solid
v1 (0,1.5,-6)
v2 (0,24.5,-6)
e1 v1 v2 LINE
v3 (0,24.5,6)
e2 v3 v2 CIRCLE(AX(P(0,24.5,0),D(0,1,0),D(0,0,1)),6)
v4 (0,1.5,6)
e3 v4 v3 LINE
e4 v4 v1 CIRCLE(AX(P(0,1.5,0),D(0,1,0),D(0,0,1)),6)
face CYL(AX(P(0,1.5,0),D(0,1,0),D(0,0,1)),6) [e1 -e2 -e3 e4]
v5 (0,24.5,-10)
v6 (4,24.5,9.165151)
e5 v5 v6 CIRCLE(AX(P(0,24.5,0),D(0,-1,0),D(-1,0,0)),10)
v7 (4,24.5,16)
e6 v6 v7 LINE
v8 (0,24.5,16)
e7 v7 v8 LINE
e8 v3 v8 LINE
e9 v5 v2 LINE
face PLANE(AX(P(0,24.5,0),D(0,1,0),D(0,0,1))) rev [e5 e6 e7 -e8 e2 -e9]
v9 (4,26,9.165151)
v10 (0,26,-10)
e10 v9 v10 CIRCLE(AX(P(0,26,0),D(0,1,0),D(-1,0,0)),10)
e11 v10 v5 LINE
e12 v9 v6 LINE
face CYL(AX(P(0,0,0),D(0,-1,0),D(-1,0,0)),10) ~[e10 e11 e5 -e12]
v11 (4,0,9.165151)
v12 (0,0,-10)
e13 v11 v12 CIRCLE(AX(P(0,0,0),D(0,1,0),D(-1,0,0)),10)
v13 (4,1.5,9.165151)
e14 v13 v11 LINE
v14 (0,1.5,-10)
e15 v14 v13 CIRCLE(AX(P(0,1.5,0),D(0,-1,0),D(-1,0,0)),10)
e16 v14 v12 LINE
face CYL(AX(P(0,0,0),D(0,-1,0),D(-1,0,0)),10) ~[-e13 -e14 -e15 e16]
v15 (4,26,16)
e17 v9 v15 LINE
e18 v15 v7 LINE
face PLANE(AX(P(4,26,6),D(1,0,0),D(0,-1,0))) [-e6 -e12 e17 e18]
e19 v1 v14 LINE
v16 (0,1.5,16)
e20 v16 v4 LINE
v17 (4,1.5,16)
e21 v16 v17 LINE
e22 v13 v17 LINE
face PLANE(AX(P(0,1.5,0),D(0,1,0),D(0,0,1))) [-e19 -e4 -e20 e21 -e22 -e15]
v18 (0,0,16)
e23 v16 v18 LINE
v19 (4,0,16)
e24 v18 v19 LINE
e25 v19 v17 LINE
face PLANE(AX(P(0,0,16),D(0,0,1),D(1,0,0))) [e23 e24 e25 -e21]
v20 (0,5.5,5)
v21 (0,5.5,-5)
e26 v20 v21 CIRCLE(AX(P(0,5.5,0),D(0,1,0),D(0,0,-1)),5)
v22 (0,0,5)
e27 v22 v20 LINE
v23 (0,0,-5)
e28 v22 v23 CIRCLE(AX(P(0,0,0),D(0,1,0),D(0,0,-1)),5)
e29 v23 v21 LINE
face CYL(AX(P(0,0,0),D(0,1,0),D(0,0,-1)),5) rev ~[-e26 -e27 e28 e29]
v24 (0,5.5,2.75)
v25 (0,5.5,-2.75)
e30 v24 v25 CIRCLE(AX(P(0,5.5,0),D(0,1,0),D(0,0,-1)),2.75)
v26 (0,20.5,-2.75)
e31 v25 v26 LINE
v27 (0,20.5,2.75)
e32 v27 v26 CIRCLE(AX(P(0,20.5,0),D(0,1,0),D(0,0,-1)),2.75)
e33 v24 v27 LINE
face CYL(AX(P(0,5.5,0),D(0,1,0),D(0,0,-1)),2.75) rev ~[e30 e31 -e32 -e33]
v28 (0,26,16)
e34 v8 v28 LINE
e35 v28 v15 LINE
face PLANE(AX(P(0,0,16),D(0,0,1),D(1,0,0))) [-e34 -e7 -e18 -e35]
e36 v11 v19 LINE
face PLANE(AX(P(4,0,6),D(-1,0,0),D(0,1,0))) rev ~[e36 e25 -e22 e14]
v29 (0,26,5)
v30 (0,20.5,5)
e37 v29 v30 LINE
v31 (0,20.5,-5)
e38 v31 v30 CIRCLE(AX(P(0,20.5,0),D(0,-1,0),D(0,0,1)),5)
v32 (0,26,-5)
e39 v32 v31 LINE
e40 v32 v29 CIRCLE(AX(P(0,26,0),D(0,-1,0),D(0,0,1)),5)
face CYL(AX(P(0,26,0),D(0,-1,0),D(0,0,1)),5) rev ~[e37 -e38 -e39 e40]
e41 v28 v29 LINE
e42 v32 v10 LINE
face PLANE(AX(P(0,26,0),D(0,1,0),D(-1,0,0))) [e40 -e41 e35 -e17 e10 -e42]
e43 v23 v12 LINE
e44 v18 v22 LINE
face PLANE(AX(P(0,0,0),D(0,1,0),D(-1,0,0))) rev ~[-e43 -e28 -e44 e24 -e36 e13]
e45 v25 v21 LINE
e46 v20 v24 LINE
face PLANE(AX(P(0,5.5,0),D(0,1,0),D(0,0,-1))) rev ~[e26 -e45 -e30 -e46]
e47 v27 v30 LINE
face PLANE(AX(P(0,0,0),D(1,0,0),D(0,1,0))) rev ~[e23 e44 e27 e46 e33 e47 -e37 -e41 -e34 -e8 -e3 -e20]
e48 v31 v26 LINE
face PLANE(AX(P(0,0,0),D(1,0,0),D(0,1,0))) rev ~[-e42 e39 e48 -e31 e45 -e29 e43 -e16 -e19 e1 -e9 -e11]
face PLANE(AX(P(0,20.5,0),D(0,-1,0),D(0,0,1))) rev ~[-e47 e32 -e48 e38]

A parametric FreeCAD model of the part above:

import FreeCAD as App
import Part
import Sketcher

V = App.Vector

doc = App.newDocument("Part")
body = doc.addObject("PartDesign::Body", "Body")

# Sketch on XZ plane
sketch1 = body.newObject("Sketcher::SketchObject", "Sketch")
sketch1.AttachmentSupport = (doc.getObject("XZ_Plane"), [""])
sketch1.MapMode = "FlatFace"
sketch1.addGeometry(Part.Circle(V(0, 0, 0), V(0, 0, 1), 10), False)
sketch1.addConstraint([
    Sketcher.Constraint("Coincident", 0, 3, -1, 1),
    Sketcher.Constraint("Diameter", 0, 20.0),
])
pad1 = body.newObject("PartDesign::Pad", "Pad")
pad1.Profile = sketch1
pad1.Length = 26
pad1.Reversed = True

# Sketch on XZ plane
sketch2 = body.newObject("Sketcher::SketchObject", "Sketch001")
sketch2.AttachmentSupport = (doc.getObject("XZ_Plane"), [""])
sketch2.MapMode = "FlatFace"
sketch2.addGeometry(Part.Circle(V(0, 0, 0), V(0, 0, 1), 2.8), False)
sketch2.addConstraint([
    Sketcher.Constraint("Coincident", 0, 3, -1, 1),
    Sketcher.Constraint("Diameter", 0, 5.5),
])
doc.recompute()
hole = body.newObject("PartDesign::Hole", "Hole")
hole.Profile = sketch2
hole.ThreadType = "None"
hole.Diameter = 5.5
hole.DepthType = "ThroughAll"
hole.HoleCutType = "Counterbore"
hole.HoleCutDiameter = 10
hole.HoleCutDepth = 5.5

# Sketch on YZ plane
sketch3 = body.newObject("Sketcher::SketchObject", "Sketch002")
sketch3.AttachmentSupport = (doc.getObject("YZ_Plane"), [""])
sketch3.MapMode = "FlatFace"
sketch3.addGeometry([
    Part.LineSegment(V(24.5, 6, 0), V(24.5, 10, 0)),
    Part.LineSegment(V(24.5, 10, 0), V(1.5, 10, 0)),
    Part.LineSegment(V(1.5, 10, 0), V(1.5, 6, 0)),
    Part.LineSegment(V(1.5, 6, 0), V(24.5, 6, 0)),
], False)
sketch3.addConstraint([
    Sketcher.Constraint("Coincident", 0, 2, 1, 1),
    Sketcher.Constraint("Coincident", 1, 2, 2, 1),
    Sketcher.Constraint("Coincident", 2, 2, 3, 1),
    Sketcher.Constraint("Coincident", 3, 2, 0, 1),
    Sketcher.Constraint("Vertical", 0),
    Sketcher.Constraint("Horizontal", 1),
    Sketcher.Constraint("Vertical", 2),
    Sketcher.Constraint("Horizontal", 3),
    Sketcher.Constraint("DistanceY", -1, 1, 2, 2, 6.0),
    Sketcher.Constraint("DistanceX", -1, 1, 1, 2, 1.5),
    Sketcher.Constraint("DistanceX", 1, 2, 1, 1, 23.0),
    Sketcher.Constraint("DistanceY", 0, 1, 0, 2, 4.0),
])
groove = body.newObject("PartDesign::Groove", "Groove")
groove.Profile = sketch3
groove.ReferenceAxis = (sketch3, ["H_Axis"])
groove.Angle = 360

# Sketch on XZ plane
sketch4 = body.newObject("Sketcher::SketchObject", "Sketch003")
sketch4.AttachmentSupport = (doc.getObject("XZ_Plane"), [""])
sketch4.MapMode = "FlatFace"
sketch4.AttachmentOffset = App.Placement(V(0, 0, -26), App.Rotation())
sketch4.addGeometry(Part.Circle(V(0, 0, 0), V(0, 0, 1), 2.8), False)
sketch4.addConstraint([
    Sketcher.Constraint("Coincident", 0, 3, -1, 1),
    Sketcher.Constraint("Diameter", 0, 5.5),
])
doc.recompute()
hole2 = body.newObject("PartDesign::Hole", "Hole001")
hole2.Profile = sketch4
hole2.ThreadType = "None"
hole2.Diameter = 5.5
hole2.DepthType = "ThroughAll"
hole2.HoleCutType = "Counterbore"
hole2.HoleCutDiameter = 10
hole2.HoleCutDepth = 5.5
hole2.Reversed = True

# Sketch on YZ plane
sketch5 = body.newObject("Sketcher::SketchObject", "Sketch004")
sketch5.AttachmentSupport = (doc.getObject("YZ_Plane"), [""])
sketch5.MapMode = "FlatFace"
sketch5.addGeometry([
    Part.LineSegment(V(-12, 26, 0), V(-12, -26, 0)),
    Part.LineSegment(V(-12, -26, 0), V(41, -26, 0)),
    Part.LineSegment(V(41, -26, 0), V(41, 26, 0)),
    Part.LineSegment(V(41, 26, 0), V(-12, 26, 0)),
], False)
sketch5.addConstraint([
    Sketcher.Constraint("Coincident", 0, 2, 1, 1),
    Sketcher.Constraint("Coincident", 1, 2, 2, 1),
    Sketcher.Constraint("Coincident", 2, 2, 3, 1),
    Sketcher.Constraint("Coincident", 3, 2, 0, 1),
    Sketcher.Constraint("Vertical", 0),
    Sketcher.Constraint("Horizontal", 1),
    Sketcher.Constraint("Vertical", 2),
    Sketcher.Constraint("Horizontal", 3),
    Sketcher.Constraint("DistanceX", 1, 1, 1, 2, 53.143),
    Sketcher.Constraint("DistanceY", 0, 2, 0, 1, 52.221),
    Sketcher.Constraint("DistanceX", 0, 2, -1, 1, 12.4894),
    Sketcher.Constraint("DistanceY", 0, 2, -1, 1, 25.9847),
])
pocket1 = body.newObject("PartDesign::Pocket", "Pocket")
pocket1.Profile = sketch5
pocket1.Length = 15

# Sketch on XY plane
sketch6 = body.newObject("Sketcher::SketchObject", "Sketch005")
sketch6.AttachmentSupport = (doc.getObject("XY_Plane"), [""])
sketch6.MapMode = "FlatFace"
sketch6.AttachmentOffset = App.Placement(V(0, 0, 6), App.Rotation())
sketch6.addGeometry([
    Part.LineSegment(V(0, 1.5, 0), V(0, 0, 0)),  # 0
    Part.LineSegment(V(0, 0, 0), V(4, 0, 0)),  # 1
    Part.LineSegment(V(4, 0, 0), V(4, 1.5, 0)),  # 2
    Part.LineSegment(V(4, 1.5, 0), V(0, 1.5, 0)),  # 3
    Part.LineSegment(V(0, 26, 0), V(0, 24.5, 0)),  # 4
    Part.LineSegment(V(0, 24.5, 0), V(4, 24.5, 0)),  # 5
    Part.LineSegment(V(4, 24.5, 0), V(4, 26, 0)),  # 6
    Part.LineSegment(V(4, 26, 0), V(0, 26, 0)),  # 7
], False)
sketch6.addConstraint([
    Sketcher.Constraint("Coincident", 0, 2, 1, 1),
    Sketcher.Constraint("Coincident", 1, 2, 2, 1),
    Sketcher.Constraint("Coincident", 2, 2, 3, 1),
    Sketcher.Constraint("Coincident", 3, 2, 0, 1),
    Sketcher.Constraint("Coincident", 4, 2, 5, 1),
    Sketcher.Constraint("Coincident", 5, 2, 6, 1),
    Sketcher.Constraint("Coincident", 6, 2, 7, 1),
    Sketcher.Constraint("Coincident", 7, 2, 4, 1),
    Sketcher.Constraint("Vertical", 0),
    Sketcher.Constraint("Horizontal", 1),
    Sketcher.Constraint("Vertical", 2),
    Sketcher.Constraint("Horizontal", 3),
    Sketcher.Constraint("Vertical", 4),
    Sketcher.Constraint("Horizontal", 5),
    Sketcher.Constraint("Vertical", 6),
    Sketcher.Constraint("Horizontal", 7),
    Sketcher.Constraint("Coincident", 0, 2, -1, 1),
    Sketcher.Constraint("PointOnObject", 4, 2, -2),
    Sketcher.Constraint("Vertical", 2, 2, 5, 2),
    Sketcher.Constraint("Equal", 2, 4),
    Sketcher.Constraint("DistanceX", 1, 1, 1, 2, 4.0),
    Sketcher.Constraint("DistanceY", 0, 2, 0, 1, 1.5),
    Sketcher.Constraint("DistanceY", -1, 1, 6, 2, 26.0),
])
pad2 = body.newObject("PartDesign::Pad", "Pad001")
pad2.Profile = sketch6
pad2.Length = 10

doc.recompute()
